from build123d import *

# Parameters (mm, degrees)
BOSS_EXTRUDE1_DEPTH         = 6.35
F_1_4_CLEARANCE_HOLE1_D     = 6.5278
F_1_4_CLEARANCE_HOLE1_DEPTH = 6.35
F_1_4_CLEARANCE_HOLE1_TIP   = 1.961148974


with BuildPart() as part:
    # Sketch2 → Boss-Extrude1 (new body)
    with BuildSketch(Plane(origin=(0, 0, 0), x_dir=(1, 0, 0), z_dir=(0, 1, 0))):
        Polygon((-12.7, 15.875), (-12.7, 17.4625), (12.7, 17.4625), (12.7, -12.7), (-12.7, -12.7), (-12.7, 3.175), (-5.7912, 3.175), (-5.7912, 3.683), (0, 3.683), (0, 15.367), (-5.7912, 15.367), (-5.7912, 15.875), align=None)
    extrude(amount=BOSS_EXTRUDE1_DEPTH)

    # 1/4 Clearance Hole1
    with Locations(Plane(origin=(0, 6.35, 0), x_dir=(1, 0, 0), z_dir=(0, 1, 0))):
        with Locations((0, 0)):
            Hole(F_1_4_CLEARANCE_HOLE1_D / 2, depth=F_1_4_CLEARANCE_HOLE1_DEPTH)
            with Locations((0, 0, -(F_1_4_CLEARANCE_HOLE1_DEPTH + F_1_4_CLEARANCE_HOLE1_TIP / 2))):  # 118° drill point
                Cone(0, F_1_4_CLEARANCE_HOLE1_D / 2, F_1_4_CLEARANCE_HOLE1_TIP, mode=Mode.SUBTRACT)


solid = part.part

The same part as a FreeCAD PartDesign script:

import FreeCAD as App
import Part
import Sketcher

V = App.Vector
Q = App.Units.Quantity


def add_polygon(sketch, points):
    """Adds a closed chain of lines whose ends are joined by coincident constraints."""
    first, n = sketch.GeometryCount, len(points)
    for a, b in zip(points, points[1:] + points[:1]):
        sketch.addGeometry(Part.LineSegment(App.Vector(*a, 0), App.Vector(*b, 0)), False)
    for i in range(n):
        sketch.addConstraint(Sketcher.Constraint("Coincident", first + i, 2, first + (i + 1) % n, 1))

doc = App.newDocument("Part")
body = doc.addObject("PartDesign::Body", "Body")

sketch1 = body.newObject("Sketcher::SketchObject", "Sketch")
sketch1.AttachmentSupport = (doc.getObject("XZ_Plane"), [""])
sketch1.MapMode = "FlatFace"
add_polygon(sketch1, [(-12.7, -17.5), (-12.7, -15.9), (-5.8, -15.9), (-5.8, -15.4), (0, -15.4), (0, -3.7), (-5.8, -3.7), (-5.8, -3.2), (-12.7, -3.2), (-12.7, 12.7), (12.7, 12.7), (12.7, -17.5)])
sketch1.addConstraint(Sketcher.Constraint("Vertical", 0))
sketch1.addConstraint(Sketcher.Constraint("Horizontal", 1))
sketch1.addConstraint(Sketcher.Constraint("Vertical", 2))
sketch1.addConstraint(Sketcher.Constraint("Horizontal", 3))
sketch1.addConstraint(Sketcher.Constraint("Vertical", 4))
sketch1.addConstraint(Sketcher.Constraint("Horizontal", 5))
sketch1.addConstraint(Sketcher.Constraint("Vertical", 6))
sketch1.addConstraint(Sketcher.Constraint("Horizontal", 7))
sketch1.addConstraint(Sketcher.Constraint("Vertical", 8))
sketch1.addConstraint(Sketcher.Constraint("Horizontal", 9))
sketch1.addConstraint(Sketcher.Constraint("Vertical", 10))
sketch1.addConstraint(Sketcher.Constraint("Horizontal", 11))
sketch1.addConstraint(Sketcher.Constraint("PointOnObject", 3, 2, -2))
sketch1.addConstraint(Sketcher.Constraint("Vertical", 2, 2, 5, 2))
sketch1.addConstraint(Sketcher.Constraint("Vertical", 0, 2, 7, 2))
sketch1.addConstraint(Sketcher.Constraint("Equal", 2, 6))
sketch1.addConstraint(Sketcher.Constraint("DistanceX", 9, 1, 9, 2, Q("1 in")))
sketch1.addConstraint(Sketcher.Constraint("DistanceY", 2, 1, 2, 2, Q("0.02 in")))
sketch1.addConstraint(Sketcher.Constraint("DistanceY", 4, 1, 4, 2, Q("0.46 in")))
sketch1.addConstraint(Sketcher.Constraint("DistanceX", 0, 2, -1, 1, Q("0.5 in")))
sketch1.addConstraint(Sketcher.Constraint("DistanceY", -1, 1, 8, 2, Q("0.5 in")))
sketch1.addConstraint(Sketcher.Constraint("DistanceX", 1, 1, 1, 2, Q("0.272 in")))
sketch1.addConstraint(Sketcher.Constraint("DistanceY", 0, 1, 0, 2, Q("0.0625 in")))
sketch1.addConstraint(Sketcher.Constraint("DistanceY", 8, 1, 8, 2, Q("0.625 in")))
pad1 = body.newObject("PartDesign::Pad", "Pad")
pad1.Profile = sketch1
pad1.Length = Q("0.25 in")
pad1.Reversed = True

sketch2 = body.newObject("Sketcher::SketchObject", "Sketch001")
sketch2.AttachmentSupport = (doc.getObject("XZ_Plane"), [""])
sketch2.MapMode = "FlatFace"
sketch2.AttachmentOffset = App.Placement(V(0, 0, -0.25 * 25.4), App.Rotation())
sketch2.addGeometry(Part.Circle(V(0, 0, 0), V(0, 0, 1), 3.3), False)
sketch2.addConstraint(Sketcher.Constraint("Coincident", 0, 3, -1, 1))
sketch2.addConstraint(Sketcher.Constraint("Diameter", 0, Q("0.257 in")))
doc.recompute()
hole = body.newObject("PartDesign::Hole", "Hole")
hole.Profile = sketch2
hole.ThreadType = "None"
hole.Diameter = Q("0.257 in")
hole.DepthType = "Dimension"
hole.Depth = Q("0.25 in")
hole.DrillPoint = "Angled"
hole.DrillPointAngle = 118
hole.Reversed = True

doc.recompute()
